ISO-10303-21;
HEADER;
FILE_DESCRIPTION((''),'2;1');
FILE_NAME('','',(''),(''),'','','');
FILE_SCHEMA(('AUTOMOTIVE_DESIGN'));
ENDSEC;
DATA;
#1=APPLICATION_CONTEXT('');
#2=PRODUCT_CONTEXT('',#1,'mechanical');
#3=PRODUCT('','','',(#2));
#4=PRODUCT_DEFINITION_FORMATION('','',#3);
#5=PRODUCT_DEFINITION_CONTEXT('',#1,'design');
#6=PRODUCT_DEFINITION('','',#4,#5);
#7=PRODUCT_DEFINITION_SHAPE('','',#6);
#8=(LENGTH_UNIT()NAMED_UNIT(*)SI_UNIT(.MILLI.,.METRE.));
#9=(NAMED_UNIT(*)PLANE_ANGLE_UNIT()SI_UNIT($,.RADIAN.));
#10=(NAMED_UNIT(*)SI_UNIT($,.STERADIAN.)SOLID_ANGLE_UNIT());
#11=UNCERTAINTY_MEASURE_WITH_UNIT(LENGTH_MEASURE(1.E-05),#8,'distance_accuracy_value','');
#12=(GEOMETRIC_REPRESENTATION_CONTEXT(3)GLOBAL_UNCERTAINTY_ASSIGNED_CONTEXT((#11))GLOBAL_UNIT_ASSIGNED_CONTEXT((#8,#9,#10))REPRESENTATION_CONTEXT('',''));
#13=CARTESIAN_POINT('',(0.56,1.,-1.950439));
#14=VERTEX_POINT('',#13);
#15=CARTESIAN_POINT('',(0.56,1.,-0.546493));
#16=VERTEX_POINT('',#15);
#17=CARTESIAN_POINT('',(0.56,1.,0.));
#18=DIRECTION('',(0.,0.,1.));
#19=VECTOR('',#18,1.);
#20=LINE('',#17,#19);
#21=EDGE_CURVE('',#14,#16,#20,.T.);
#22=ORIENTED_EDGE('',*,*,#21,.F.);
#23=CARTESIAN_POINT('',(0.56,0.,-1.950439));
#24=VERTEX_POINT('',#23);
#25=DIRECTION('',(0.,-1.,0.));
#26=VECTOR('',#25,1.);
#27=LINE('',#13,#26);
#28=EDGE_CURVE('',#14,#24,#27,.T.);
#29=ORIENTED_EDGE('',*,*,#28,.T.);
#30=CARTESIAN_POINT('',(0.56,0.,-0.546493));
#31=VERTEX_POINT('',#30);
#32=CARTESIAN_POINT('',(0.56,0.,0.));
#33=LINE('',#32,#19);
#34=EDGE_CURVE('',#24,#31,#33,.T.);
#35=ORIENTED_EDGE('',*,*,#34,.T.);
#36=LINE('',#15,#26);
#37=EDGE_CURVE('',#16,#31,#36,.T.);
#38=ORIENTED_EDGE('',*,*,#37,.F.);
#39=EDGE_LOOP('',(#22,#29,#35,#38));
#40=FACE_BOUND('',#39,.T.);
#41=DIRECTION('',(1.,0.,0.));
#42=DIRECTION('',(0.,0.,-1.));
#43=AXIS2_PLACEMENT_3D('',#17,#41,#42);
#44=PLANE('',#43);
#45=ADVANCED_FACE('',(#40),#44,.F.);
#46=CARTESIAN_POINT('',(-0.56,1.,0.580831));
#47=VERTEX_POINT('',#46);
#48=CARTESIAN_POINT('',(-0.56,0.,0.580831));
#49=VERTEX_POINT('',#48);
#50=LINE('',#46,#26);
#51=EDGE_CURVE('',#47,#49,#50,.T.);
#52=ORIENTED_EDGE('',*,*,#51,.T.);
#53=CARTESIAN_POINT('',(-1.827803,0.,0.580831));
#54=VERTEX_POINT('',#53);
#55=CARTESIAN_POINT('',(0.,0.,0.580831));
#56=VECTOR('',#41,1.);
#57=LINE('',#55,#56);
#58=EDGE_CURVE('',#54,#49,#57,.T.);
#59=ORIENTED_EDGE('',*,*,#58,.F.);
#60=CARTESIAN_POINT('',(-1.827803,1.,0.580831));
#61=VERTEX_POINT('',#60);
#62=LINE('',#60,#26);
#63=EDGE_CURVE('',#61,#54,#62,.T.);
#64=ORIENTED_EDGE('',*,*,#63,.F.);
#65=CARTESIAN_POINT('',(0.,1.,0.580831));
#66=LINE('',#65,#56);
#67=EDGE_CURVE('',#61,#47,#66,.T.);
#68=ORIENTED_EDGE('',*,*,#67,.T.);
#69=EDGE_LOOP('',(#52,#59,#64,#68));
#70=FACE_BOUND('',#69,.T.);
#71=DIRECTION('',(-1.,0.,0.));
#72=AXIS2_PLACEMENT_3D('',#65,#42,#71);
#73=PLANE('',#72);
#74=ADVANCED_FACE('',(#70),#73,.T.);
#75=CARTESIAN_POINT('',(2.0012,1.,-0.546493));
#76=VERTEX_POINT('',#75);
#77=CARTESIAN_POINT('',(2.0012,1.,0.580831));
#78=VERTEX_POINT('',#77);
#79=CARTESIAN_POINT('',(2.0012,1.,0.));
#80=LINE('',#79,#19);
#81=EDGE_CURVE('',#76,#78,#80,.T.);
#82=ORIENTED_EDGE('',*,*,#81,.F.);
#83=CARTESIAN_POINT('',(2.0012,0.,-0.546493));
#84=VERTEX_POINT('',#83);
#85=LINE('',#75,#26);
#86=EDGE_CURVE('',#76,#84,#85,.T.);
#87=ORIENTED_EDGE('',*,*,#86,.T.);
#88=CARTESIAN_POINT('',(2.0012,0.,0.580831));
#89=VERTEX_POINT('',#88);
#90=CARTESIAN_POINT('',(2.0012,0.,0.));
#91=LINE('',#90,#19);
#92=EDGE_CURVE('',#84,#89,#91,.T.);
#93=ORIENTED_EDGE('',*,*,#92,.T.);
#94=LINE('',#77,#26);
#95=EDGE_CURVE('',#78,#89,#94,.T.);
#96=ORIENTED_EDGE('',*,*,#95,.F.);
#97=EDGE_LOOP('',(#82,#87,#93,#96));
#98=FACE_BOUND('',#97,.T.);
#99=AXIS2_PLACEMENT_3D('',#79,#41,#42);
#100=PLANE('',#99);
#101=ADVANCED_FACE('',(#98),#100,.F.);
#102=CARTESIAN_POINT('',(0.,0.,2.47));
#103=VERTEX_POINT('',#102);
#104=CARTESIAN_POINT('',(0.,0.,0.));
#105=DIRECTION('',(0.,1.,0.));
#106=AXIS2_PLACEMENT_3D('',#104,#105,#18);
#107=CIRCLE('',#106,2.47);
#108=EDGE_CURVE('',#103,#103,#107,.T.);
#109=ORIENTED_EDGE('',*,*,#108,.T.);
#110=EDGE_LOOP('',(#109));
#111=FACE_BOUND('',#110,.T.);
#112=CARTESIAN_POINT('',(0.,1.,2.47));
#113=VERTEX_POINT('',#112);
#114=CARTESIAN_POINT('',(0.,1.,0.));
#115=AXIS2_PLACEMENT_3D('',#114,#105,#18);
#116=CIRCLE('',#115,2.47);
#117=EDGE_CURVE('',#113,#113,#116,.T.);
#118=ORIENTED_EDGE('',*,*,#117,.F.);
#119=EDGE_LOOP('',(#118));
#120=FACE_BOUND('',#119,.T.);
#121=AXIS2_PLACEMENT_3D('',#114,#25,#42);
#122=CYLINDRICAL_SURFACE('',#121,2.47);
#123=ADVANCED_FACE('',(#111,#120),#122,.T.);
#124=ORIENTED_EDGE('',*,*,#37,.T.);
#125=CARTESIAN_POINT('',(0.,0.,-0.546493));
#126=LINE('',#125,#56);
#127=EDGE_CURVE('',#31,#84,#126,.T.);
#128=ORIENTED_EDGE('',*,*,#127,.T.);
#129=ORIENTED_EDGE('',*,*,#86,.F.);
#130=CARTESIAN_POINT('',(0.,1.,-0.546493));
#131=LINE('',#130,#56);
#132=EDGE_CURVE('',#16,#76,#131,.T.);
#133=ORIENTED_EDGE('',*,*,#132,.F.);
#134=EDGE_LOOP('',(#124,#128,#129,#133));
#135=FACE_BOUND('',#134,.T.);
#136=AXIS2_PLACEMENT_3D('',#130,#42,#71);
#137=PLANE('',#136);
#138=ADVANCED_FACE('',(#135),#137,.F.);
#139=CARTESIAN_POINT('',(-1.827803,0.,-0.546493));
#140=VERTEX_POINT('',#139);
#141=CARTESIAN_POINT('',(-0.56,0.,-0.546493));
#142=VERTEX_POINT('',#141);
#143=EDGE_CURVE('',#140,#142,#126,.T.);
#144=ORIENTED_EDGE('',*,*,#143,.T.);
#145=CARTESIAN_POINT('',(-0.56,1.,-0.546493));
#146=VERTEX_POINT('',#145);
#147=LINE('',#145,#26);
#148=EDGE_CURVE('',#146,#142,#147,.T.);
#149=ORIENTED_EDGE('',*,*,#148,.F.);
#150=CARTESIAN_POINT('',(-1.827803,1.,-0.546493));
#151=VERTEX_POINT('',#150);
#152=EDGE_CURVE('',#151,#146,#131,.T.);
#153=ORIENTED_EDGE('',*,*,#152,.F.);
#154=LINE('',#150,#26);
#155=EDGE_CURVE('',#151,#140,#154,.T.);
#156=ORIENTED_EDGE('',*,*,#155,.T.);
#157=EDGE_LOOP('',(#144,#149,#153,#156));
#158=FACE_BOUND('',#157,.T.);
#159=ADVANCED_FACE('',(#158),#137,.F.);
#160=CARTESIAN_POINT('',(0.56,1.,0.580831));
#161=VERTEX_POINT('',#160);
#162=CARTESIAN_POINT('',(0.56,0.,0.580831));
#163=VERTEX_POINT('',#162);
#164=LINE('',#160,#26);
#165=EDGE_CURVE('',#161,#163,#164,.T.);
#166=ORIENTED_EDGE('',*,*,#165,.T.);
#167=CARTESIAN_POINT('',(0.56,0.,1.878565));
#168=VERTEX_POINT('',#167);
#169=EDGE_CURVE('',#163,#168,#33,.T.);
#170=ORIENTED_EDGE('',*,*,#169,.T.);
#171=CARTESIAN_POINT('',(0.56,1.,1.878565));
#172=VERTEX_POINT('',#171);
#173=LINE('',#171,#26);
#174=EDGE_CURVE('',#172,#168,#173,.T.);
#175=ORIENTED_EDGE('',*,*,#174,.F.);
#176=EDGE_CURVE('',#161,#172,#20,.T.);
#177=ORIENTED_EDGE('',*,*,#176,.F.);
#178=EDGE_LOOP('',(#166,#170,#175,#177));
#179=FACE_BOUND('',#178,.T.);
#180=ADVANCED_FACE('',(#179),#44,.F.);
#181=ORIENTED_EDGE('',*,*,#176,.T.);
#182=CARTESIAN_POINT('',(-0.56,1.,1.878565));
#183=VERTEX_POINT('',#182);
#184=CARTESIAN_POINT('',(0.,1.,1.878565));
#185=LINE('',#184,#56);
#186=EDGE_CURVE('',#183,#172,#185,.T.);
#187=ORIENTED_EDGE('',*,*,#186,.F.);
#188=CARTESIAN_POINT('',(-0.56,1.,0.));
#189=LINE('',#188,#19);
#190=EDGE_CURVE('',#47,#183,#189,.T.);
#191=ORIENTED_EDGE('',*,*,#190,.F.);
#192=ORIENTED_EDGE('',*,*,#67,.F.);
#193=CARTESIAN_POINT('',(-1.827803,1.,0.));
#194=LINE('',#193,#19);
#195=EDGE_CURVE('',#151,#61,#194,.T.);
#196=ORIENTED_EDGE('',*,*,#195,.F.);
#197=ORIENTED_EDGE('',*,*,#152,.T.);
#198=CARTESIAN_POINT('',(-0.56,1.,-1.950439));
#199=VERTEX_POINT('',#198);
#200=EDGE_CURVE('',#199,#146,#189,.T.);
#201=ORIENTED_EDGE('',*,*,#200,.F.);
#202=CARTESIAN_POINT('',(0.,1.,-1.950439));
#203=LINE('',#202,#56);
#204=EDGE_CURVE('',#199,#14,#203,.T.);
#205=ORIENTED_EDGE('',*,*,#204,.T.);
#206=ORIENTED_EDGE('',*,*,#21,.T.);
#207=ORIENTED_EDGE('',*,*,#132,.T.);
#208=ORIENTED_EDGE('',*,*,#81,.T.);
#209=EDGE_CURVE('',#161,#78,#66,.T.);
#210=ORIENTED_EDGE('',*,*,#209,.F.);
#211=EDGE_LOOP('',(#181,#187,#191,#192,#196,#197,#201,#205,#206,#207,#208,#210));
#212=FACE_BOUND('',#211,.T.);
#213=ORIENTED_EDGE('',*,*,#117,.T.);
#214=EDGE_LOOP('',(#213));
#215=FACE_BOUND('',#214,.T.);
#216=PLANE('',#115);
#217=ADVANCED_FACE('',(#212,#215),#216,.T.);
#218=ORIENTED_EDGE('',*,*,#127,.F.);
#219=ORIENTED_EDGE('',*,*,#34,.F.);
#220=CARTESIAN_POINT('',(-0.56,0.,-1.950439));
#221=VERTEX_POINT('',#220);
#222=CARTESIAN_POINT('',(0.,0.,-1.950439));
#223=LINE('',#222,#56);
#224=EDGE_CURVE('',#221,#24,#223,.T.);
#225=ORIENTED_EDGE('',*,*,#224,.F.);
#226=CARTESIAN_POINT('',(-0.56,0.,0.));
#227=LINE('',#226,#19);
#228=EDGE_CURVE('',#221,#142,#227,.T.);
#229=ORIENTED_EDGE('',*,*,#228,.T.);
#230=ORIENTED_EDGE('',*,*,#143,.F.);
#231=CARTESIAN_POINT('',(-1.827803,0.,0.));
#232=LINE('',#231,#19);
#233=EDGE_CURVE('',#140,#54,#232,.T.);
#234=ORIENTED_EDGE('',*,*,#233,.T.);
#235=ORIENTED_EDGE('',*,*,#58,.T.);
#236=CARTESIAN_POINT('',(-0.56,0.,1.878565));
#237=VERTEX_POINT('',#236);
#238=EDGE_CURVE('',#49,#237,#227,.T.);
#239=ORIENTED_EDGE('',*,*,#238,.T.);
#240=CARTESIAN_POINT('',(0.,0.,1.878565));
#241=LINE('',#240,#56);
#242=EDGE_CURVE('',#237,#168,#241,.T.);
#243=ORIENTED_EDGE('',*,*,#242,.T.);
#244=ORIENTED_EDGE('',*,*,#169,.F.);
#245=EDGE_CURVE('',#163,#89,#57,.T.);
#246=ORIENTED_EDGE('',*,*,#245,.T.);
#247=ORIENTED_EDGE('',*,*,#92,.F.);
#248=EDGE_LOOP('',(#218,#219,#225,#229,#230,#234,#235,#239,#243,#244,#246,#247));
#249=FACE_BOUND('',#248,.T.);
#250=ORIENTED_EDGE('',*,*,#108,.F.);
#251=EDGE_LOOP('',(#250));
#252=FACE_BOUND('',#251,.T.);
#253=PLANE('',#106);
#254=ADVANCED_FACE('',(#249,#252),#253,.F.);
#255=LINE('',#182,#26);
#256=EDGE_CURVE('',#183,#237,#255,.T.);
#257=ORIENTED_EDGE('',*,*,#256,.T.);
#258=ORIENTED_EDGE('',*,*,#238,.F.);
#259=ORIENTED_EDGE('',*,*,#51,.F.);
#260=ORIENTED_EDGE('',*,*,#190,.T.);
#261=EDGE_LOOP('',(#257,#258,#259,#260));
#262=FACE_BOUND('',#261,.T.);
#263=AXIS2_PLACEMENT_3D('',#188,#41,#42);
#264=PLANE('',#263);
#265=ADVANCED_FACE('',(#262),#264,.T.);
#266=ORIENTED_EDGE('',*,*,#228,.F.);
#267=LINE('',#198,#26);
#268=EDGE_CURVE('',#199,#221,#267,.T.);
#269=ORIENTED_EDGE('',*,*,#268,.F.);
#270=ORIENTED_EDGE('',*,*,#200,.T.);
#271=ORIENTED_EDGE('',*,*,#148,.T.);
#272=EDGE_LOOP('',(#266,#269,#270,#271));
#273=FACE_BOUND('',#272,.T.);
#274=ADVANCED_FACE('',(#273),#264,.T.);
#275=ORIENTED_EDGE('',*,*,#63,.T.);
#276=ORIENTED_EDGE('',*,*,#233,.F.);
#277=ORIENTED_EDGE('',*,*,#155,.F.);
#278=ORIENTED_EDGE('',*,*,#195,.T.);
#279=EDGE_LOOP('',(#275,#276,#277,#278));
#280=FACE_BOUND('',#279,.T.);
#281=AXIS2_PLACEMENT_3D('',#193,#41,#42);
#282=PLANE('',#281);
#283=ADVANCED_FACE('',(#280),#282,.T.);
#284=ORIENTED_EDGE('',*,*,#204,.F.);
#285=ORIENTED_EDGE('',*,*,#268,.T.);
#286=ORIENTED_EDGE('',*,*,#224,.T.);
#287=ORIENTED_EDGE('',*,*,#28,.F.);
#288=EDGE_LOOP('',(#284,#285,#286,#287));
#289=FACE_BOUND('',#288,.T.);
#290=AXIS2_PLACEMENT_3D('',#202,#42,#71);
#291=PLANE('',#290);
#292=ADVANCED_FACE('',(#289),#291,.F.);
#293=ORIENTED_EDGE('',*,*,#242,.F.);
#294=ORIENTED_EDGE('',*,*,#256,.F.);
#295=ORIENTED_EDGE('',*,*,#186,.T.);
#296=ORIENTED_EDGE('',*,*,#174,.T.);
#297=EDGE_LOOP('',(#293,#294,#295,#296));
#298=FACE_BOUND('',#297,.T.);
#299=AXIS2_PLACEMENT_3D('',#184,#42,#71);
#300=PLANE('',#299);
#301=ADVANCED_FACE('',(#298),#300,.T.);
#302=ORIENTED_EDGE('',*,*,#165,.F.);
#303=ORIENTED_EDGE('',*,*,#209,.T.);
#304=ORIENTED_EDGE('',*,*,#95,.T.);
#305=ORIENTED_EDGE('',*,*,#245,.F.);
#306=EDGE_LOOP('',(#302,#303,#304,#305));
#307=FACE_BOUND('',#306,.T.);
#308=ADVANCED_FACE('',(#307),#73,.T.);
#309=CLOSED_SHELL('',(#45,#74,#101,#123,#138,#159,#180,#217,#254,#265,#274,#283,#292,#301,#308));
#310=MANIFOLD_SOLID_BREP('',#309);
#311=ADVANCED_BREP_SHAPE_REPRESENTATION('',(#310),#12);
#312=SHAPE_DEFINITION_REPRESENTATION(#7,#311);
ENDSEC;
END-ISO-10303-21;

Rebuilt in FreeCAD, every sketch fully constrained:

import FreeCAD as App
import Part
import Sketcher

doc = App.newDocument("Part")
body = doc.addObject("PartDesign::Body", "Body")

# Sketch on XZ plane
sketch1 = body.newObject("Sketcher::SketchObject", "Sketch")
sketch1.AttachmentSupport = (doc.getObject("XZ_Plane"), [""])
sketch1.MapMode = "FlatFace"
sketch1.addGeometry([
    Part.Circle(App.Vector(0, 0, 0), App.Vector(0, 0, 1), 2.47),  # 0
    Part.LineSegment(App.Vector(-0.56, 0.580831, 0), App.Vector(-1.827803, 0.580831, 0)),  # 1
    Part.LineSegment(App.Vector(-1.827803, 0.580831, 0), App.Vector(-1.827803, -0.546493, 0)),  # 2
    Part.LineSegment(App.Vector(-1.827803, -0.546493, 0), App.Vector(-0.56, -0.546493, 0)),  # 3
    Part.LineSegment(App.Vector(-0.56, -0.546493, 0), App.Vector(-0.56, -1.950439, 0)),  # 4
    Part.LineSegment(App.Vector(-0.56, -1.950439, 0), App.Vector(0.56, -1.950439, 0)),  # 5
    Part.LineSegment(App.Vector(0.56, -1.950439, 0), App.Vector(0.56, -0.546493, 0)),  # 6
    Part.LineSegment(App.Vector(0.56, -0.546493, 0), App.Vector(2.0012, -0.546493, 0)),  # 7
    Part.LineSegment(App.Vector(2.0012, -0.546493, 0), App.Vector(2.0012, 0.580831, 0)),  # 8
    Part.LineSegment(App.Vector(2.0012, 0.580831, 0), App.Vector(0.56, 0.580831, 0)),  # 9
    Part.LineSegment(App.Vector(0.56, 0.580831, 0), App.Vector(0.56, 1.878565, 0)),  # 10
    Part.LineSegment(App.Vector(0.56, 1.878565, 0), App.Vector(-0.56, 1.878565, 0)),  # 11
    Part.LineSegment(App.Vector(-0.56, 1.878565, 0), App.Vector(-0.56, 0.580831, 0)),  # 12
], False)
sketch1.addConstraint([
    Sketcher.Constraint("Coincident", 1, 2, 2, 1),
    Sketcher.Constraint("Coincident", 2, 2, 3, 1),
    Sketcher.Constraint("Coincident", 3, 2, 4, 1),
    Sketcher.Constraint("Coincident", 4, 2, 5, 1),
    Sketcher.Constraint("Coincident", 5, 2, 6, 1),
    Sketcher.Constraint("Coincident", 6, 2, 7, 1),
    Sketcher.Constraint("Coincident", 7, 2, 8, 1),
    Sketcher.Constraint("Coincident", 8, 2, 9, 1),
    Sketcher.Constraint("Coincident", 9, 2, 10, 1),
    Sketcher.Constraint("Coincident", 10, 2, 11, 1),
    Sketcher.Constraint("Coincident", 11, 2, 12, 1),
    Sketcher.Constraint("Coincident", 12, 2, 1, 1),
    Sketcher.Constraint("Horizontal", 1),
    Sketcher.Constraint("Vertical", 2),
    Sketcher.Constraint("Horizontal", 3),
    Sketcher.Constraint("Vertical", 4),
    Sketcher.Constraint("Horizontal", 5),
    Sketcher.Constraint("Vertical", 6),
    Sketcher.Constraint("Horizontal", 7),
    Sketcher.Constraint("Vertical", 8),
    Sketcher.Constraint("Horizontal", 9),
    Sketcher.Constraint("Vertical", 10),
    Sketcher.Constraint("Horizontal", 11),
    Sketcher.Constraint("Vertical", 12),
    Sketcher.Constraint("Coincident", 0, 3, -1, 1),
    Sketcher.Constraint("Symmetric", 3, 2, 6, 2, -2),
    Sketcher.Constraint("Symmetric", 9, 2, 12, 2, -2),
    Sketcher.Constraint("Vertical", 6, 2, 9, 2),
    Sketcher.Constraint("Diameter", 0, 4.94),
    Sketcher.Constraint("DistanceX", 5, 1, 5, 2, 1.12),
    Sketcher.Constraint("DistanceX", 7, 1, 7, 2, 1.4412),
    Sketcher.Constraint("DistanceX", 1, 2, 1, 1, 1.267803),
    Sketcher.Constraint("DistanceY", 2, 2, 2, 1, 1.127323),
    Sketcher.Constraint("DistanceY", 4, 2, 4, 1, 1.403946),
    Sketcher.Constraint("DistanceY", 10, 1, 10, 2, 1.297734),
    Sketcher.Constraint("DistanceY", -1, 1, 1, 2, 0.580831),
])
pad1 = body.newObject("PartDesign::Pad", "Pad")
pad1.Profile = sketch1
pad1.Length = 1
pad1.Reversed = True

doc.recompute()
